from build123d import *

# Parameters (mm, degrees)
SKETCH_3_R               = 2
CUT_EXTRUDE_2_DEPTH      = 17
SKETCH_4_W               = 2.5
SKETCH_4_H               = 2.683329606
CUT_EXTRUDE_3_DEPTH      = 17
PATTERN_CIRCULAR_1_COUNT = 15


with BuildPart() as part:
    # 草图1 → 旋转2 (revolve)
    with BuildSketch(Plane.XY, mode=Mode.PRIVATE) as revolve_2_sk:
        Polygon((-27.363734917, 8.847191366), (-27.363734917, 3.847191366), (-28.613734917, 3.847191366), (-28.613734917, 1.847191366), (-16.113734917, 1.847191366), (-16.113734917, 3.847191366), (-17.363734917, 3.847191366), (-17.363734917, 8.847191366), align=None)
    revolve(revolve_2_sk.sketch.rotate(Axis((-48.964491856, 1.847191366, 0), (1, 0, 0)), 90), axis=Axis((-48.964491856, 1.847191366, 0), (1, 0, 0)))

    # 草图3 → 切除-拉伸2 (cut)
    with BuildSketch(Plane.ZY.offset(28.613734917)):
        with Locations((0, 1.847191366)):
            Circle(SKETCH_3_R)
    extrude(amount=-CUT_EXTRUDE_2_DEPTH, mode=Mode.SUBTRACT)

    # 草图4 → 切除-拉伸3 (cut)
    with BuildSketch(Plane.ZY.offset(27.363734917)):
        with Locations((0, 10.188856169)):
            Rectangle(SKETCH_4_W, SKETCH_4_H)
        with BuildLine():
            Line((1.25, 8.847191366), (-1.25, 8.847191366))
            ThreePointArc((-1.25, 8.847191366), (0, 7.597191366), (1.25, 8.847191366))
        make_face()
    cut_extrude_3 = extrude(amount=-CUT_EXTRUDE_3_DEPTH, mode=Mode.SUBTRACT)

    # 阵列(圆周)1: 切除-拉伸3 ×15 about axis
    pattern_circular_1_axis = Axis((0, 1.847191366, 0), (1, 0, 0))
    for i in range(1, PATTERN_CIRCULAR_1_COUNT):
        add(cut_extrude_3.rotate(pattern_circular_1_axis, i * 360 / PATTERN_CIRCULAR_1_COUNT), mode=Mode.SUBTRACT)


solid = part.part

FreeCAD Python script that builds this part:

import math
import FreeCAD as App
import Part
import Sketcher
from FreeCAD import Vector
Q = App.Units.Quantity


def add_polygon(sketch, points):
    """Adds a closed chain of lines whose ends are joined by coincident constraints."""
    first, n = sketch.GeometryCount, len(points)
    for a, b in zip(points, points[1:] + points[:1]):
        sketch.addGeometry(Part.LineSegment(App.Vector(*a, 0), App.Vector(*b, 0)), False)
    for i in range(n):
        sketch.addConstraint(Sketcher.Constraint("Coincident", first + i, 2, first + (i + 1) % n, 1))

doc = App.newDocument("Part")
body = doc.addObject("PartDesign::Body", "Body")

# Sketch on XY plane
sketch1 = body.newObject("Sketcher::SketchObject", "Sketch")
sketch1.AttachmentSupport = (doc.getObject("XY_Plane"), [""])
sketch1.MapMode = "FlatFace"
add_polygon(sketch1, [(-27.4, 8.8), (-27.4, 3.8), (-28.6, 3.8), (-28.6, 1.8), (-16.1, 1.8), (-16.1, 3.8), (-17.4, 3.8), (-17.4, 8.8)])  # lines 0-7
sketch1.addGeometry(Part.LineSegment(Vector(-28.6, 1.8, 0), Vector(-16.1, 1.8, 0)), True)  # axis
sketch1.addConstraint([
    Sketcher.Constraint("Vertical", 0),
    Sketcher.Constraint("Horizontal", 1),
    Sketcher.Constraint("Vertical", 2),
    Sketcher.Constraint("Horizontal", 3),
    Sketcher.Constraint("Vertical", 4),
    Sketcher.Constraint("Horizontal", 5),
    Sketcher.Constraint("Vertical", 6),
    Sketcher.Constraint("Horizontal", 7),
    Sketcher.Constraint("Horizontal", 8),
    Sketcher.Constraint("Coincident", 8, 1, 2, 2),
    Sketcher.Constraint("Horizontal", 1, 2, 4, 2),
    Sketcher.Constraint("Vertical", 4, 2, 8, 2),
    Sketcher.Constraint("Equal", 1, 5),
    Sketcher.Constraint("DistanceX", 7, 2, 7, 1, Q("10 mm")),
    Sketcher.Constraint("DistanceY", 0, 2, 0, 1, Q("5 mm")),
    Sketcher.Constraint("DistanceY", 2, 2, 2, 1, Q("2 mm")),
    Sketcher.Constraint("DistanceX", 3, 1, 3, 2, Q("12.5 mm")),
    Sketcher.Constraint("DistanceY", -1, 1, 0, 2, Q("3.847191 mm")),
    Sketcher.Constraint("DistanceX", 0, 2, -1, 1, Q("27.363735 mm")),
])
revolution = body.newObject("PartDesign::Revolution", "Revolution")
revolution.Profile = sketch1
revolution.ReferenceAxis = (sketch1, ["Axis0"])
revolution.Angle = 360

# Sketch on YZ plane
sketch2 = body.newObject("Sketcher::SketchObject", "Sketch001")
sketch2.AttachmentSupport = (doc.getObject("YZ_Plane"), [""])
sketch2.MapMode = "FlatFace"
sketch2.AttachmentOffset = App.Placement(Vector(0, 0, -28.613735), App.Rotation())
sketch2.addGeometry(Part.Circle(Vector(1.8, 0, 0), Vector(0, 0, 1), 2), False)
sketch2.addConstraint([
    Sketcher.Constraint("PointOnObject", 0, 3, -1),
    Sketcher.Constraint("Diameter", 0, Q("4 mm")),
    Sketcher.Constraint("DistanceX", -1, 1, 0, 3, Q("1.847191 mm")),
])
pocket1 = body.newObject("PartDesign::Pocket", "Pocket")
pocket1.Profile = sketch2
pocket1.Length = 17
pocket1.Reversed = True

# Sketch on YZ plane
sketch3 = body.newObject("Sketcher::SketchObject", "Sketch002")
sketch3.AttachmentSupport = (doc.getObject("YZ_Plane"), [""])
sketch3.MapMode = "FlatFace"
sketch3.AttachmentOffset = App.Placement(Vector(0, 0, -27.363735), App.Rotation())
sketch3.addGeometry([
    Part.LineSegment(Vector(11.5, -1.2, 0), Vector(8.8, -1.2, 0)),
    Part.ArcOfCircle(Part.Circle(Vector(8.8, 0, 0), Vector(0, 0, 1), 1.2), math.radians(90), math.radians(270)),
    Part.LineSegment(Vector(8.8, 1.2, 0), Vector(11.5, 1.2, 0)),
    Part.LineSegment(Vector(11.5, 1.2, 0), Vector(11.5, -1.2, 0)),
], False)
sketch3.addConstraint([
    Sketcher.Constraint("Tangent", 0, 2, 1, 2),
    Sketcher.Constraint("Tangent", 1, 1, 2, 1),
    Sketcher.Constraint("Coincident", 2, 2, 3, 1),
    Sketcher.Constraint("Coincident", 3, 2, 0, 1),
    Sketcher.Constraint("Horizontal", 0),
    Sketcher.Constraint("Horizontal", 2),
    Sketcher.Constraint("Vertical", 3),
    Sketcher.Constraint("PointOnObject", 1, 3, -1),
    Sketcher.Constraint("Radius", 1, Q("1.25 mm")),
    Sketcher.Constraint("DistanceX", 0, 2, 0, 1, Q("2.68333 mm")),
    Sketcher.Constraint("DistanceX", -1, 1, 1, 3, Q("8.847191 mm")),
])
pocket2 = body.newObject("PartDesign::Pocket", "Pocket001")
pocket2.Profile = sketch3
pocket2.Length = 17
pocket2.Reversed = True
doc.recompute()

datumline = body.newObject("PartDesign::Line", "DatumLine")
datumline.Placement = App.Placement(Vector(0, 1.847191, 0), App.Rotation(Vector(0, 0, 1), Vector(1, 0, 0)))
polarpattern = body.newObject("PartDesign::PolarPattern", "PolarPattern")
polarpattern.Originals = [pocket2]
polarpattern.Axis = (datumline, [""])
polarpattern.Angle = 360
polarpattern.Occurrences = 15
body.Tip = polarpattern

doc.recompute()
